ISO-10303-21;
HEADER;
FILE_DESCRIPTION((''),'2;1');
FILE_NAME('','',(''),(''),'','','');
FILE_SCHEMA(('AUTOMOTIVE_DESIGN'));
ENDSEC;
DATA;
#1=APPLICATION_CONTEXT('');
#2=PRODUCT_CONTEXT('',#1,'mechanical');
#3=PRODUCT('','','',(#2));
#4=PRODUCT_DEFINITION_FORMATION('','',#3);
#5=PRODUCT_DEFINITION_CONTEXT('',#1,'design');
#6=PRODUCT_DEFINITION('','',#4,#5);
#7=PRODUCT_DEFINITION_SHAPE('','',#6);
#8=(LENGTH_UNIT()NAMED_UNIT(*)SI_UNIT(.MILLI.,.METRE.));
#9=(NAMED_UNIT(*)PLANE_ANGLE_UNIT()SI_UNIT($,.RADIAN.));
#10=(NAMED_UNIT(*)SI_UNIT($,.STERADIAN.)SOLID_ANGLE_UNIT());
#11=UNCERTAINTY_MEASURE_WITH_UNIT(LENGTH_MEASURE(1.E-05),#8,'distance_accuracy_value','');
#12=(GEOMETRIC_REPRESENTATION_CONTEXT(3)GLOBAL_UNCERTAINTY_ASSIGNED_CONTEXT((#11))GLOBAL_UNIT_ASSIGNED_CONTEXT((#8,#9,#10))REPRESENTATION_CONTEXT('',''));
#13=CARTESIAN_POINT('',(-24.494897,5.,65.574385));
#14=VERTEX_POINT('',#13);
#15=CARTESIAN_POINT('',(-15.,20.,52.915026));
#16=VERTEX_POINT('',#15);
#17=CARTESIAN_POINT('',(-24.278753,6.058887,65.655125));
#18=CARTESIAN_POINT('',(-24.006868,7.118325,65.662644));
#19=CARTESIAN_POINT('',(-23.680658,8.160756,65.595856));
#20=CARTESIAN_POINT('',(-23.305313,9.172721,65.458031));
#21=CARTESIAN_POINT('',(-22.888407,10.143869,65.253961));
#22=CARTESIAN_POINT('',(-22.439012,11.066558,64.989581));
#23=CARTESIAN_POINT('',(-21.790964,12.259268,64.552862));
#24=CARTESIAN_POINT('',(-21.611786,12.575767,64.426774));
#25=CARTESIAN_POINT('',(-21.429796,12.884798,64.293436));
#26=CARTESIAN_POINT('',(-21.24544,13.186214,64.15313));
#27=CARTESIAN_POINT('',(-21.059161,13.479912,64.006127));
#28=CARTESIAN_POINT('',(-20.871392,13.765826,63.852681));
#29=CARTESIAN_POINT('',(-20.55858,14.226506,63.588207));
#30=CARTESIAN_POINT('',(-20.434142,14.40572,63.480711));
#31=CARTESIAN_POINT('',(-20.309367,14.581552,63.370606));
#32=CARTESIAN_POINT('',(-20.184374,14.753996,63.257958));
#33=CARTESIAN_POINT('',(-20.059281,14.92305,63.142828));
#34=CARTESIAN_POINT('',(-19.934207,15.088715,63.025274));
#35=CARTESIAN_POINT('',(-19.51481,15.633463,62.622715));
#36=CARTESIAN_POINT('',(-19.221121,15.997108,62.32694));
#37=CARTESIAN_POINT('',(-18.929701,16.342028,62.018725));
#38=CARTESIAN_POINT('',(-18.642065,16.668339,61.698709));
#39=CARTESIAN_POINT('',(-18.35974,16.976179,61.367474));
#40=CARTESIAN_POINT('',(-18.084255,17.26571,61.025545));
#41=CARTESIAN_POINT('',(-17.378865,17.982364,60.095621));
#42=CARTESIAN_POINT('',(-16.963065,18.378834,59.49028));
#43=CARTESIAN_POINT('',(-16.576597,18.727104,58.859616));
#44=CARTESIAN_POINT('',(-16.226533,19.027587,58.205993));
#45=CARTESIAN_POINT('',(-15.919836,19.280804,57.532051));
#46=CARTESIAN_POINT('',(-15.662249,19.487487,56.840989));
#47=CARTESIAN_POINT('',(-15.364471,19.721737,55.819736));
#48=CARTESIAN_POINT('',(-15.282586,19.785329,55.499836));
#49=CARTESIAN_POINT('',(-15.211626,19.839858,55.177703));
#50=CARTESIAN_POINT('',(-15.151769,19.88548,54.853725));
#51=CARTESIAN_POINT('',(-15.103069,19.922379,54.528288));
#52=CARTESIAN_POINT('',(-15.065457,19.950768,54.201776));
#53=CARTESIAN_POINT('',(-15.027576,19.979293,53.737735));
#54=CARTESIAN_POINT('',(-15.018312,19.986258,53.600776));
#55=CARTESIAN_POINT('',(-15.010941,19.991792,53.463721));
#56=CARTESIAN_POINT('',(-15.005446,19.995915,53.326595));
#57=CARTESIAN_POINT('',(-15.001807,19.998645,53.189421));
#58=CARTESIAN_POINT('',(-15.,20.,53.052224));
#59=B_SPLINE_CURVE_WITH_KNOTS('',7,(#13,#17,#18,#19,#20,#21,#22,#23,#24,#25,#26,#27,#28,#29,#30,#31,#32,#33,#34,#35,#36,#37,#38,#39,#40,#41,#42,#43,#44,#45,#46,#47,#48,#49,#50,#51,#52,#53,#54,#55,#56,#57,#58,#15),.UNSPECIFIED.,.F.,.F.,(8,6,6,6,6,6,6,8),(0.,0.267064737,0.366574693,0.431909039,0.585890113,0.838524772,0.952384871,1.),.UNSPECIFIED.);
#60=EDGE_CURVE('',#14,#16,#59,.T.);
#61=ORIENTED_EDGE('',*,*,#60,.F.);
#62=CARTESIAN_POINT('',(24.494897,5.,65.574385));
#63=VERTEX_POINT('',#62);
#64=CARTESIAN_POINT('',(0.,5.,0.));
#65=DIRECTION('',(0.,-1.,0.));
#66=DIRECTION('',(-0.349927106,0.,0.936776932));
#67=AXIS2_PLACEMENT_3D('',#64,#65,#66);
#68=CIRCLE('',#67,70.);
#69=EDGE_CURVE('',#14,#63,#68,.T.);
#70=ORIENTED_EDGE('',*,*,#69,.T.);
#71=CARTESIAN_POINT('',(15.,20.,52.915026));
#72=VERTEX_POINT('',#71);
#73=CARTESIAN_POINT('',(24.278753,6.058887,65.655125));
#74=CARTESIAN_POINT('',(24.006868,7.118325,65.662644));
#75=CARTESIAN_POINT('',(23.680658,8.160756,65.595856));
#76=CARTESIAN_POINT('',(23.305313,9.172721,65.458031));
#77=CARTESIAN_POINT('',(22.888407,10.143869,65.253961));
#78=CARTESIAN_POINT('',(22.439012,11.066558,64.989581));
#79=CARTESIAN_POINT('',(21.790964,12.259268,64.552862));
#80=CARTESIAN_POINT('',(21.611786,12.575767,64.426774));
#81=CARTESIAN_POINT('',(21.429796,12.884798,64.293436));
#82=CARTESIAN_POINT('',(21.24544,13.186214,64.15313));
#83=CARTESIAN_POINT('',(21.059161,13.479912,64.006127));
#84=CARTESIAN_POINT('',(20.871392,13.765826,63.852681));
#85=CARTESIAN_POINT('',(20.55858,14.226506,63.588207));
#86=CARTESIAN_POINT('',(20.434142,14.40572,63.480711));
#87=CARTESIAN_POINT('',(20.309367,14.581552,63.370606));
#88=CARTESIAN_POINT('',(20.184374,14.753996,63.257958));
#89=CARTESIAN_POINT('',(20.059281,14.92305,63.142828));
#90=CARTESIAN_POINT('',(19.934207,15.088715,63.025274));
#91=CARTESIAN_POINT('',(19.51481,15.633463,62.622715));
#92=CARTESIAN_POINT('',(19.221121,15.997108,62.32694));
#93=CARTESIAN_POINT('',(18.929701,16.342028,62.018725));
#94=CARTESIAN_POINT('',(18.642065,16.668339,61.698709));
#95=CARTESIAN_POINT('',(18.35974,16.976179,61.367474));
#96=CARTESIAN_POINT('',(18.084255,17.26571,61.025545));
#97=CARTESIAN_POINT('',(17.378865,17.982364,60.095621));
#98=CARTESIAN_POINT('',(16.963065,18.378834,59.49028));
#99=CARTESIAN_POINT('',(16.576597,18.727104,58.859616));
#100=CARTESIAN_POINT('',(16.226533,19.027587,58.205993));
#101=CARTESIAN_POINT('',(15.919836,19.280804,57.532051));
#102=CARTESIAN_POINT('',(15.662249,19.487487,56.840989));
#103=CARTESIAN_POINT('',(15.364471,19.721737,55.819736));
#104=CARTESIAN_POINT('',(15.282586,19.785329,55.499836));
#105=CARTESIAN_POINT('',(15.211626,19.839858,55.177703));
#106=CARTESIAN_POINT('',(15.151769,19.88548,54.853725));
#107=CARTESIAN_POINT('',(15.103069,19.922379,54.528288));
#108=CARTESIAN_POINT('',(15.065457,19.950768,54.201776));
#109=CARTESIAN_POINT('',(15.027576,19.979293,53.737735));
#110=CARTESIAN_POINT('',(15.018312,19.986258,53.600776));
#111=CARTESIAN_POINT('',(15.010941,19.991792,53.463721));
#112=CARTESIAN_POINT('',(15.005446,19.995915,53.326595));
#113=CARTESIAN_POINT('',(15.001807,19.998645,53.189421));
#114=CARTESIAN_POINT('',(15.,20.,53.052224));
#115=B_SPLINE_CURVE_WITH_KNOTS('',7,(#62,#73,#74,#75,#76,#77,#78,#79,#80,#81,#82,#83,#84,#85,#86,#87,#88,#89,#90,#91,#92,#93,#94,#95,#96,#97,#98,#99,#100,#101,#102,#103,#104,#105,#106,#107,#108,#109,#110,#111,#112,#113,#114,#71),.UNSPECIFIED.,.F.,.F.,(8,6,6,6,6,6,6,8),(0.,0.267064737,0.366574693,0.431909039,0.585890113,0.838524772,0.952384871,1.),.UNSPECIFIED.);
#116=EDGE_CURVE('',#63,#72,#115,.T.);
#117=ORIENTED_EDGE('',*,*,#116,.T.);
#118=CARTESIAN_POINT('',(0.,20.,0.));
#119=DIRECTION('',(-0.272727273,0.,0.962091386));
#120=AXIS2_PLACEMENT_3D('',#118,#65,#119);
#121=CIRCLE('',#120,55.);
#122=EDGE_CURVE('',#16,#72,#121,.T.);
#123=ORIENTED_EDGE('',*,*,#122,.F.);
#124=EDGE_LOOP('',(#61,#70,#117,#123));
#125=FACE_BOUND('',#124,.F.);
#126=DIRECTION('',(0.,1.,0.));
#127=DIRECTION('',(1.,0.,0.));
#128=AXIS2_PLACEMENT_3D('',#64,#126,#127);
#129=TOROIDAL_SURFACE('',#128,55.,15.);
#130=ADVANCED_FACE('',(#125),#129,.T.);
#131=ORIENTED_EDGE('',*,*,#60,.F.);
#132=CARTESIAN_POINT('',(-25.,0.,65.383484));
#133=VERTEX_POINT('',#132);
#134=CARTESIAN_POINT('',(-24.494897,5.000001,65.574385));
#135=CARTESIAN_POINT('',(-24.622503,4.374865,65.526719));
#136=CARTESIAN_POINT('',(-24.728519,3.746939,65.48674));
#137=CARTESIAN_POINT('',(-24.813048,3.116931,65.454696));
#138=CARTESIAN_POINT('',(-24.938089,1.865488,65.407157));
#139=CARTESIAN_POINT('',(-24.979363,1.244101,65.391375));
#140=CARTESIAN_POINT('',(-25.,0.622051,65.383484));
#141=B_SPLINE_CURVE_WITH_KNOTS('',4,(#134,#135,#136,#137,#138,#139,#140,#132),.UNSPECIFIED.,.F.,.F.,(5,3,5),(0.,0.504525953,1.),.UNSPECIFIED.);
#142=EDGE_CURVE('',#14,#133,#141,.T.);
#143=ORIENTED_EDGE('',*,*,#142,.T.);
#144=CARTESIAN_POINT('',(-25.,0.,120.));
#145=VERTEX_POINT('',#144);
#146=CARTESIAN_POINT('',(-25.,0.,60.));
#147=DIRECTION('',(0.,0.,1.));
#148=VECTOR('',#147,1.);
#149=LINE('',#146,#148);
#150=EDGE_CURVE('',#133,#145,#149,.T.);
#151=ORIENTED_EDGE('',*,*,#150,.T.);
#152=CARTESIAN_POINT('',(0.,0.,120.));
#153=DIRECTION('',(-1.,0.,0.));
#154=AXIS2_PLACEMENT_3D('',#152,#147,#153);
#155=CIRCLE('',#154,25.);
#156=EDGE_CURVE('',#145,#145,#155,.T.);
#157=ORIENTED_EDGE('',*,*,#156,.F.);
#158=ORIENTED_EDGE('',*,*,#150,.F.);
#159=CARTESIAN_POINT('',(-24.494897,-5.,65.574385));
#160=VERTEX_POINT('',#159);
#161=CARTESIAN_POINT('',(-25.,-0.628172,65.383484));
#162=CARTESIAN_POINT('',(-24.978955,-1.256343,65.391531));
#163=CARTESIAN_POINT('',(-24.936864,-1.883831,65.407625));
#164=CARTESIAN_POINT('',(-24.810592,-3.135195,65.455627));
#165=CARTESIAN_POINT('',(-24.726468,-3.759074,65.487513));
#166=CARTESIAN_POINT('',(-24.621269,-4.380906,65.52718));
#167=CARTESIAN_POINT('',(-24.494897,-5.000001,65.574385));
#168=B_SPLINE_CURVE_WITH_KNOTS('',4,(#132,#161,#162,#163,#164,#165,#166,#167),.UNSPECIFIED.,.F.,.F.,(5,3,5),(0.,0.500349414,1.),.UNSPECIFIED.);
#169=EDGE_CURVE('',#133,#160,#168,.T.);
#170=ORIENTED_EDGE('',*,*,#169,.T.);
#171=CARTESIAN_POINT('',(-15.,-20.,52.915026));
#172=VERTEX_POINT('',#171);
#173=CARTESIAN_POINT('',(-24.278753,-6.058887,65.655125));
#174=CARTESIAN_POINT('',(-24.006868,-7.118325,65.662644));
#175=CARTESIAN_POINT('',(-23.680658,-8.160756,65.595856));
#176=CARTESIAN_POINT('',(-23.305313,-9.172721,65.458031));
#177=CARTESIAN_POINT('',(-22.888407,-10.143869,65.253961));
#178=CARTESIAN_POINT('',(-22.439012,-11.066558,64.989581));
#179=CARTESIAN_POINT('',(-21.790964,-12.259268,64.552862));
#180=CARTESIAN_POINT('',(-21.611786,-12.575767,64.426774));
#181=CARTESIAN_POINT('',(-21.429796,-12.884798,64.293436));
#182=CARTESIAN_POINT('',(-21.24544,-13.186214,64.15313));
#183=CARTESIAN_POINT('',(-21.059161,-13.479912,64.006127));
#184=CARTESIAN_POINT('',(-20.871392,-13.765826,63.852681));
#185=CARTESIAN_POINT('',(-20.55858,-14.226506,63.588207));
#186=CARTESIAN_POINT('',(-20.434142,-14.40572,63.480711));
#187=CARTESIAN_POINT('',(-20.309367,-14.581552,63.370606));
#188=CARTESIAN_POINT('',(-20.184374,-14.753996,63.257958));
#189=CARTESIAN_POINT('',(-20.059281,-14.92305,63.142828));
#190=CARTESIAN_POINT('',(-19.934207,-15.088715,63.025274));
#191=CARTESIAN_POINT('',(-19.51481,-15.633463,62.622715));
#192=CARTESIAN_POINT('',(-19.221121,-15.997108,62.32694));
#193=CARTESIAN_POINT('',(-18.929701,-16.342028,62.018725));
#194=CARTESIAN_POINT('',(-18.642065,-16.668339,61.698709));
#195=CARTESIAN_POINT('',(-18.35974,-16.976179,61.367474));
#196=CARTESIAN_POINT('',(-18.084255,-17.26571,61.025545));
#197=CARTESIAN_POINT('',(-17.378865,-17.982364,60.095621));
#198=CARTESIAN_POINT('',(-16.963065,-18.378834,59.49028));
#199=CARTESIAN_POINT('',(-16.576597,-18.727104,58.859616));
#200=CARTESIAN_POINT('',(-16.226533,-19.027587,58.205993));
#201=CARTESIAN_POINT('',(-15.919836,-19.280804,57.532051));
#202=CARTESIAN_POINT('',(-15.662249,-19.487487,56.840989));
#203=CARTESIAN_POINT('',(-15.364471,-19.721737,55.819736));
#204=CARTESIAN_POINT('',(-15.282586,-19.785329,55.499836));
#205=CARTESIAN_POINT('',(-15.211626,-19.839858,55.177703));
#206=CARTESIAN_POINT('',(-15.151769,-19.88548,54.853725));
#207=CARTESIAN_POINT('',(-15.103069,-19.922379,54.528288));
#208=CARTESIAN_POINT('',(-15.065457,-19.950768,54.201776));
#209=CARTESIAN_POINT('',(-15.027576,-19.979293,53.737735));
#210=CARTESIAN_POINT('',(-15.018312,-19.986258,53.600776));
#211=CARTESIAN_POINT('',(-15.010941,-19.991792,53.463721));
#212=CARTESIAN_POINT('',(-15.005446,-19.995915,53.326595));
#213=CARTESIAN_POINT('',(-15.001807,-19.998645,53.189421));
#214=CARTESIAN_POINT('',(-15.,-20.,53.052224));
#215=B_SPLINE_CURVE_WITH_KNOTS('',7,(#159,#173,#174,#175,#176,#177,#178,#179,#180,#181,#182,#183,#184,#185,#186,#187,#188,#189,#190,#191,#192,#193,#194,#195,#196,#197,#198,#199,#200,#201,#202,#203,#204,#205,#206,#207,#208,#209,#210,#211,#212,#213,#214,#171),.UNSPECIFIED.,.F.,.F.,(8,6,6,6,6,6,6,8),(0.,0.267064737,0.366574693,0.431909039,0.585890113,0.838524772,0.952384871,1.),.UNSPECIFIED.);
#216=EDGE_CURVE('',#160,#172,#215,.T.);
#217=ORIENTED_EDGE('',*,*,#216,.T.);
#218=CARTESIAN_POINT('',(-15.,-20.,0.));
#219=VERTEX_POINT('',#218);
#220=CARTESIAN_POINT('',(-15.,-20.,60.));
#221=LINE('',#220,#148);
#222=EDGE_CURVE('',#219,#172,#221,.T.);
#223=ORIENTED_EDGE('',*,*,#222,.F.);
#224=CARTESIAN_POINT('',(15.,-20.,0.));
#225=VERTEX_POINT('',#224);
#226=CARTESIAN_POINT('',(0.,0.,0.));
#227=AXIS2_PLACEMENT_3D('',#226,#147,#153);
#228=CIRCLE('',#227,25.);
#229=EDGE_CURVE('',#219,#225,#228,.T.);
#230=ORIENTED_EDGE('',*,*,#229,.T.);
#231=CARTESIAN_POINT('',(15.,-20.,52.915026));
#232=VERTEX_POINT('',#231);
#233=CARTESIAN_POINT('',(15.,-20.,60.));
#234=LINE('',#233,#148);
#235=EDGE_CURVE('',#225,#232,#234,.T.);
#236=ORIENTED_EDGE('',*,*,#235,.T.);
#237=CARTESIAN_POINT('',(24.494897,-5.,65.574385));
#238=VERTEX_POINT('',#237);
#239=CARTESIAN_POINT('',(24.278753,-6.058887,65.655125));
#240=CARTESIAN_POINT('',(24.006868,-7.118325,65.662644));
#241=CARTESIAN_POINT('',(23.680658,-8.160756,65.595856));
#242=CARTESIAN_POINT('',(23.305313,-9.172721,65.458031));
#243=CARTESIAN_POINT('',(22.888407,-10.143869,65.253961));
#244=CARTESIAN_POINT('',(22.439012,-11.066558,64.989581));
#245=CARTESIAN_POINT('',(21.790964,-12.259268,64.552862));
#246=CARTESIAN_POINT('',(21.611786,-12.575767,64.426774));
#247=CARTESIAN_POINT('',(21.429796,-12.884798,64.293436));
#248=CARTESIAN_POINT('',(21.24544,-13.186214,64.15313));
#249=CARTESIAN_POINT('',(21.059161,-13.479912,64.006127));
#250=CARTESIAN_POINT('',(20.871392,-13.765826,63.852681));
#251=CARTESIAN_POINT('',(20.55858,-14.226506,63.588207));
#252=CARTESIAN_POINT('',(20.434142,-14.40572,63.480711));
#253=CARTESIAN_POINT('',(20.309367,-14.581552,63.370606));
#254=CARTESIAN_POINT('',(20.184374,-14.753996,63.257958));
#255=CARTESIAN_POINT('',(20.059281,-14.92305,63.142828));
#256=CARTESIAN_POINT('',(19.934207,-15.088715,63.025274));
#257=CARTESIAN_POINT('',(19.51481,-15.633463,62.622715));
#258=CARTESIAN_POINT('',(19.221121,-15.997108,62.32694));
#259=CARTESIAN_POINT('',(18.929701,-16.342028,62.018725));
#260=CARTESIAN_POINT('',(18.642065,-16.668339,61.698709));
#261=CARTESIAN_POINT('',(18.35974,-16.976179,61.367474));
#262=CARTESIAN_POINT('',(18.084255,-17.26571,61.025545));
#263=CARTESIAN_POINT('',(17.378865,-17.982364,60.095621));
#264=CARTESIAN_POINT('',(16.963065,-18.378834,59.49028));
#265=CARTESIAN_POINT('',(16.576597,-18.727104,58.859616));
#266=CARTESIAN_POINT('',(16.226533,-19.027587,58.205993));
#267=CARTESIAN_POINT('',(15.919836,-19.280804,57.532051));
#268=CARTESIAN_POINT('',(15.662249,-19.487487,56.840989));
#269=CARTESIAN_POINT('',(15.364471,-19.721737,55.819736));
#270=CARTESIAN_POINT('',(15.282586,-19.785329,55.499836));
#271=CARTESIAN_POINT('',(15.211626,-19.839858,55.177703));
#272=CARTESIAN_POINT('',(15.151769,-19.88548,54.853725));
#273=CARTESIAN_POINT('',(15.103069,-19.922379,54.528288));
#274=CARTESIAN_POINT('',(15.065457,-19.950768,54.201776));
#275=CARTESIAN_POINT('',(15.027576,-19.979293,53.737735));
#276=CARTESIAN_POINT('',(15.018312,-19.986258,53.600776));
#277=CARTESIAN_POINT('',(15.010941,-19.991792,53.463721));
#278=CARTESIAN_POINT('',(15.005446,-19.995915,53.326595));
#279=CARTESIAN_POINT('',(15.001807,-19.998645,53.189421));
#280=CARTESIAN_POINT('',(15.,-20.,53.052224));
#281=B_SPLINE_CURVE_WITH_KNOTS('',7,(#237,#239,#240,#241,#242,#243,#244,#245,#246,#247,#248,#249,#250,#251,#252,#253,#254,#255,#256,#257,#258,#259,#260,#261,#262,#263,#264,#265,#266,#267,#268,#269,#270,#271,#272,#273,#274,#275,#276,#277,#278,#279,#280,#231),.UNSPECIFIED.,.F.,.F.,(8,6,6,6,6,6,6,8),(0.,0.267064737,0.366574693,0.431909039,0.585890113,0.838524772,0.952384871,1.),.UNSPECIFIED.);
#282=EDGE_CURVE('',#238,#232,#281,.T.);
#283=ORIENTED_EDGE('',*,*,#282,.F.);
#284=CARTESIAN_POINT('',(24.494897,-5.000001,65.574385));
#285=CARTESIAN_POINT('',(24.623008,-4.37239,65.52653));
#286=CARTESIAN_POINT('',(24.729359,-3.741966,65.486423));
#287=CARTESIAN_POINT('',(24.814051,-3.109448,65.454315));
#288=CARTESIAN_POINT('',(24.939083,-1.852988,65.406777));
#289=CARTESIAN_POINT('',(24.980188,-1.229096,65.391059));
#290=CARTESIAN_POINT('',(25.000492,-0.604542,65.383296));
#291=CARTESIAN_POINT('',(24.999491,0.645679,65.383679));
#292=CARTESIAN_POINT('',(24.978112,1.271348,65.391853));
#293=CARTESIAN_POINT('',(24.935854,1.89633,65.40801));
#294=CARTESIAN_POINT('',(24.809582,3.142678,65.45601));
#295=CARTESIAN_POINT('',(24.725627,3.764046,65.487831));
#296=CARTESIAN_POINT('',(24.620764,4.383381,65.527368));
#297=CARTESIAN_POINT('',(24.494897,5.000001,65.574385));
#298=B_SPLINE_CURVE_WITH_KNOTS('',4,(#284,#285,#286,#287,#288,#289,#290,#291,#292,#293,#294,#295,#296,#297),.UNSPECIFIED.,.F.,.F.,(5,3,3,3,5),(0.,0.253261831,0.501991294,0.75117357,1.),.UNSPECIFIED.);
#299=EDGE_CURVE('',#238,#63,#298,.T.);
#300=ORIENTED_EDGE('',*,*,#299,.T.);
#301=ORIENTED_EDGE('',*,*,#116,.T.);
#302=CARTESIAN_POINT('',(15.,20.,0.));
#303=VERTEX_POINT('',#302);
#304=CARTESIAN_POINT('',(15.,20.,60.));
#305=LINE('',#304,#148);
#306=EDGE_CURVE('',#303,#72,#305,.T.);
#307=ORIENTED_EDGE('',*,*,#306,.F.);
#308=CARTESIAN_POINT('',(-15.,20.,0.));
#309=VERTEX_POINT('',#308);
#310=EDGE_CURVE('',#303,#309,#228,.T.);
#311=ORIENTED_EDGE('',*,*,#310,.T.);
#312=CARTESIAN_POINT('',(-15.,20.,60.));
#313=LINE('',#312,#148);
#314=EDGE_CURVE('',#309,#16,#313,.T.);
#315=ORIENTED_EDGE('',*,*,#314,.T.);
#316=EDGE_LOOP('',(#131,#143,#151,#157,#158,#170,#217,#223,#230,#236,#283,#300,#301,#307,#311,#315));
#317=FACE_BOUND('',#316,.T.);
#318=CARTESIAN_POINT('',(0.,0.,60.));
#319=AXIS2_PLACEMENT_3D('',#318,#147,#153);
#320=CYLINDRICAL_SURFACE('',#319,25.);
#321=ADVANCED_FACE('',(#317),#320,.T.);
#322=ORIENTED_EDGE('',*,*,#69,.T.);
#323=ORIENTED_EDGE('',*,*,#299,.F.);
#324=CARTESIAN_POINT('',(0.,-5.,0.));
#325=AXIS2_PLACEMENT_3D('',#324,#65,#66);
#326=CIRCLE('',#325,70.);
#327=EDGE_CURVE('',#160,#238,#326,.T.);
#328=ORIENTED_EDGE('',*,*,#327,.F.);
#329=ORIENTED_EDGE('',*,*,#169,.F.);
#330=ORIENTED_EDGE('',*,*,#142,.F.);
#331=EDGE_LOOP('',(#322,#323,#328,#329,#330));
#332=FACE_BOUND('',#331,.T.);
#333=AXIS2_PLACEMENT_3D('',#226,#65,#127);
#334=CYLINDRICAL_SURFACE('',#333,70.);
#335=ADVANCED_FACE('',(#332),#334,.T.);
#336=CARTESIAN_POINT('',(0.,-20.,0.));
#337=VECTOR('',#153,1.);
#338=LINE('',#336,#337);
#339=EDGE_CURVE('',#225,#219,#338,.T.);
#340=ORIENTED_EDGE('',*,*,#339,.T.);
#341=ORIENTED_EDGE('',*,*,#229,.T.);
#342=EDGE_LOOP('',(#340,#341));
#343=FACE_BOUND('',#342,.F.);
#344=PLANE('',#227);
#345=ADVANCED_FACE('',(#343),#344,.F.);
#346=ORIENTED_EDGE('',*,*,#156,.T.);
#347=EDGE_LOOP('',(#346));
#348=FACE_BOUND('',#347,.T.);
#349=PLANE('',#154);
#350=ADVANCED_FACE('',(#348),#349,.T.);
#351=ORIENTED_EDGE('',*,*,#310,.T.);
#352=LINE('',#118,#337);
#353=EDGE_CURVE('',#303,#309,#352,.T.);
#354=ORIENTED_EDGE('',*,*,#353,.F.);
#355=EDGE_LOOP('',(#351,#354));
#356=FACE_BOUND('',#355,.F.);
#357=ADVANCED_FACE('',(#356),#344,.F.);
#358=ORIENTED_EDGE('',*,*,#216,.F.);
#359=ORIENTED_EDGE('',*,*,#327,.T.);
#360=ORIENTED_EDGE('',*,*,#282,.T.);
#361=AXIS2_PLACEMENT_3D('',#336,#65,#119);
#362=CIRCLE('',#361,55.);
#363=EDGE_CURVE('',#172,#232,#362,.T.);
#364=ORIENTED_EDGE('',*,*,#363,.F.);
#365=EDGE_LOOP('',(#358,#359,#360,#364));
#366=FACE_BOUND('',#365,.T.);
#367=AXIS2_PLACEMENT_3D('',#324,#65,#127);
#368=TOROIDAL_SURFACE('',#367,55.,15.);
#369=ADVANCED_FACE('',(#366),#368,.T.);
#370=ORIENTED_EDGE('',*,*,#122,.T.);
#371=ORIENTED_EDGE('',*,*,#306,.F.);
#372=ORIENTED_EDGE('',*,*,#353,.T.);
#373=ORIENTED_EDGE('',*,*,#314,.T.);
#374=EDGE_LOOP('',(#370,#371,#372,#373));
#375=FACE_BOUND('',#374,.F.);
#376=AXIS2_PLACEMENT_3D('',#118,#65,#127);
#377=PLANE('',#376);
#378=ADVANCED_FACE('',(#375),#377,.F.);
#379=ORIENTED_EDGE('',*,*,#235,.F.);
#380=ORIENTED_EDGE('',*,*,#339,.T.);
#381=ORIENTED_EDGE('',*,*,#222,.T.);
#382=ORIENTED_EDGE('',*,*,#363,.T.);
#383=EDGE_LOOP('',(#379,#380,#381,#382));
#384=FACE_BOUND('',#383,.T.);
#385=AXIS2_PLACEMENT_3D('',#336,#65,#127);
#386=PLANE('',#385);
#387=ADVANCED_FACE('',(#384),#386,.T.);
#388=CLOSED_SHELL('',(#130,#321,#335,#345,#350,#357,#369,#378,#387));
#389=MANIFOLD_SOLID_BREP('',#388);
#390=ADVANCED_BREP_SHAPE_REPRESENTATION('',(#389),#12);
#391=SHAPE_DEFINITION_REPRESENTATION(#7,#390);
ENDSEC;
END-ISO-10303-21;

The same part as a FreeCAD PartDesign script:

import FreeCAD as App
import Part
import Sketcher

V = App.Vector
Q = App.Units.Quantity


def edges_at(feature, points):
    """Names of the edges that pass closest to the given points."""
    edges = feature.Shape.Edges
    near = lambda p: min(range(len(edges)), key=lambda i: edges[i].distToShape(Part.Vertex(*p))[0])
    return sorted({f"Edge{near(p) + 1}" for p in points})


def add_polygon(sketch, points):
    """Adds a closed chain of lines whose ends are joined by coincident constraints."""
    first, n = sketch.GeometryCount, len(points)
    for a, b in zip(points, points[1:] + points[:1]):
        sketch.addGeometry(Part.LineSegment(App.Vector(*a, 0), App.Vector(*b, 0)), False)
    for i in range(n):
        sketch.addConstraint(Sketcher.Constraint("Coincident", first + i, 2, first + (i + 1) % n, 1))

doc = App.newDocument("Part")
body = doc.addObject("PartDesign::Body", "Body")

sketch1 = body.newObject("Sketcher::SketchObject", "Sketch")
sketch1.AttachmentSupport = (doc.getObject("XZ_Plane"), [""])
sketch1.MapMode = "FlatFace"
sketch1.addGeometry(Part.Circle(V(0, 0, 0), V(0, 0, 1), 70), False)
sketch1.addConstraint(Sketcher.Constraint("Coincident", 0, 3, -1, 1))
sketch1.addConstraint(Sketcher.Constraint("Diameter", 0, Q("140 mm")))
pad1 = body.newObject("PartDesign::Pad", "Pad")
pad1.Profile = sketch1
pad1.Length = 40
pad1.Midplane = True
doc.recompute()

fillet = body.newObject("PartDesign::Fillet", "Fillet")
fillet.Base = (pad1, edges_at(pad1, [(-70, -20, 0), (-70, 20, 0)]))
fillet.Radius = 15

sketch2 = body.newObject("Sketcher::SketchObject", "Sketch001")
sketch2.AttachmentSupport = (doc.getObject("XZ_Plane"), [""])
sketch2.MapMode = "FlatFace"
add_polygon(sketch2, [(-25, 120), (-25, 0), (0, 0), (0, 120)])
sketch2.addConstraint(Sketcher.Constraint("Vertical", 0))
sketch2.addConstraint(Sketcher.Constraint("Horizontal", 1))
sketch2.addConstraint(Sketcher.Constraint("Vertical", 2))
sketch2.addConstraint(Sketcher.Constraint("Horizontal", 3))
sketch2.addConstraint(Sketcher.Constraint("Coincident", 1, 2, -1, 1))
sketch2.addConstraint(Sketcher.Constraint("DistanceX", 1, 1, 1, 2, Q("25 mm")))
sketch2.addConstraint(Sketcher.Constraint("DistanceY", 0, 2, 0, 1, Q("120 mm")))
revolution = body.newObject("PartDesign::Revolution", "Revolution")
revolution.Profile = sketch2
revolution.ReferenceAxis = (sketch2, ["V_Axis"])
revolution.Angle = 360

doc.recompute()
